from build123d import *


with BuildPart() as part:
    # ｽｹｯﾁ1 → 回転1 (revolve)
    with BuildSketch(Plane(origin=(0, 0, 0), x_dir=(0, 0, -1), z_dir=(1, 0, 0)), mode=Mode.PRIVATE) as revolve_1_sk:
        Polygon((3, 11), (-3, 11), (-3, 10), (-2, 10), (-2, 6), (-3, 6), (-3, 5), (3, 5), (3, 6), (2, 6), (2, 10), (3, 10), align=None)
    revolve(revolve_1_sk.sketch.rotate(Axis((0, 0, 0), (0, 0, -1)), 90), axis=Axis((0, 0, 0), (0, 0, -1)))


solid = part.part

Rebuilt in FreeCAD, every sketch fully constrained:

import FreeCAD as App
import Part
import Sketcher
Q = App.Units.Quantity

doc = App.newDocument("Part")
body = doc.addObject("PartDesign::Body", "Body")

# Sketch on YZ plane
sketch1 = body.newObject("Sketcher::SketchObject", "Sketch")
sketch1.AttachmentSupport = (doc.getObject("YZ_Plane"), [""])
sketch1.MapMode = "FlatFace"
sketch1.addGeometry(Part.LineSegment(App.Vector(11, -3, 0), App.Vector(11, 3, 0)), False)
sketch1.addGeometry(Part.LineSegment(App.Vector(11, 3, 0), App.Vector(10, 3, 0)), False)
sketch1.addGeometry(Part.LineSegment(App.Vector(10, 3, 0), App.Vector(10, 2, 0)), False)
sketch1.addGeometry(Part.LineSegment(App.Vector(10, 2, 0), App.Vector(6, 2, 0)), False)
sketch1.addGeometry(Part.LineSegment(App.Vector(6, 2, 0), App.Vector(6, 3, 0)), False)
sketch1.addGeometry(Part.LineSegment(App.Vector(6, 3, 0), App.Vector(5, 3, 0)), False)
sketch1.addGeometry(Part.LineSegment(App.Vector(5, 3, 0), App.Vector(5, -3, 0)), False)
sketch1.addGeometry(Part.LineSegment(App.Vector(5, -3, 0), App.Vector(6, -3, 0)), False)
sketch1.addGeometry(Part.LineSegment(App.Vector(6, -3, 0), App.Vector(6, -2, 0)), False)
sketch1.addGeometry(Part.LineSegment(App.Vector(6, -2, 0), App.Vector(10, -2, 0)), False)
sketch1.addGeometry(Part.LineSegment(App.Vector(10, -2, 0), App.Vector(10, -3, 0)), False)
sketch1.addGeometry(Part.LineSegment(App.Vector(10, -3, 0), App.Vector(11, -3, 0)), False)
sketch1.addConstraint(Sketcher.Constraint("Coincident", 0, 2, 1, 1))
sketch1.addConstraint(Sketcher.Constraint("Coincident", 1, 2, 2, 1))
sketch1.addConstraint(Sketcher.Constraint("Coincident", 2, 2, 3, 1))
sketch1.addConstraint(Sketcher.Constraint("Coincident", 3, 2, 4, 1))
sketch1.addConstraint(Sketcher.Constraint("Coincident", 4, 2, 5, 1))
sketch1.addConstraint(Sketcher.Constraint("Coincident", 5, 2, 6, 1))
sketch1.addConstraint(Sketcher.Constraint("Coincident", 6, 2, 7, 1))
sketch1.addConstraint(Sketcher.Constraint("Coincident", 7, 2, 8, 1))
sketch1.addConstraint(Sketcher.Constraint("Coincident", 8, 2, 9, 1))
sketch1.addConstraint(Sketcher.Constraint("Coincident", 9, 2, 10, 1))
sketch1.addConstraint(Sketcher.Constraint("Coincident", 10, 2, 11, 1))
sketch1.addConstraint(Sketcher.Constraint("Coincident", 11, 2, 0, 1))
sketch1.addConstraint(Sketcher.Constraint("Vertical", 0))
sketch1.addConstraint(Sketcher.Constraint("Horizontal", 1))
sketch1.addConstraint(Sketcher.Constraint("Vertical", 2))
sketch1.addConstraint(Sketcher.Constraint("Horizontal", 3))
sketch1.addConstraint(Sketcher.Constraint("Vertical", 4))
sketch1.addConstraint(Sketcher.Constraint("Horizontal", 5))
sketch1.addConstraint(Sketcher.Constraint("Vertical", 6))
sketch1.addConstraint(Sketcher.Constraint("Horizontal", 7))
sketch1.addConstraint(Sketcher.Constraint("Vertical", 8))
sketch1.addConstraint(Sketcher.Constraint("Horizontal", 9))
sketch1.addConstraint(Sketcher.Constraint("Vertical", 10))
sketch1.addConstraint(Sketcher.Constraint("Horizontal", 11))
sketch1.addConstraint(Sketcher.Constraint("Symmetric", 4, 2, 7, 2, -1))
sketch1.addConstraint(Sketcher.Constraint("Symmetric", 2, 2, 9, 2, -1))
sketch1.addConstraint(Sketcher.Constraint("Horizontal", 1, 2, 4, 2))
sketch1.addConstraint(Sketcher.Constraint("Horizontal", 7, 2, 10, 2))
sketch1.addConstraint(Sketcher.Constraint("Equal", 1, 5))
sketch1.addConstraint(Sketcher.Constraint("Equal", 11, 2))
sketch1.addConstraint(Sketcher.Constraint("DistanceX", 1, 2, 1, 1, Q("1 mm")))
sketch1.addConstraint(Sketcher.Constraint("DistanceX", 3, 2, 3, 1, Q("4 mm")))
sketch1.addConstraint(Sketcher.Constraint("DistanceY", 0, 1, 0, 2, Q("6 mm")))
sketch1.addConstraint(Sketcher.Constraint("DistanceX", -1, 1, 0, 2, Q("11 mm")))
revolution = body.newObject("PartDesign::Revolution", "Revolution")
revolution.Profile = sketch1
revolution.ReferenceAxis = (sketch1, ["V_Axis"])
revolution.Angle = 360

doc.recompute()
